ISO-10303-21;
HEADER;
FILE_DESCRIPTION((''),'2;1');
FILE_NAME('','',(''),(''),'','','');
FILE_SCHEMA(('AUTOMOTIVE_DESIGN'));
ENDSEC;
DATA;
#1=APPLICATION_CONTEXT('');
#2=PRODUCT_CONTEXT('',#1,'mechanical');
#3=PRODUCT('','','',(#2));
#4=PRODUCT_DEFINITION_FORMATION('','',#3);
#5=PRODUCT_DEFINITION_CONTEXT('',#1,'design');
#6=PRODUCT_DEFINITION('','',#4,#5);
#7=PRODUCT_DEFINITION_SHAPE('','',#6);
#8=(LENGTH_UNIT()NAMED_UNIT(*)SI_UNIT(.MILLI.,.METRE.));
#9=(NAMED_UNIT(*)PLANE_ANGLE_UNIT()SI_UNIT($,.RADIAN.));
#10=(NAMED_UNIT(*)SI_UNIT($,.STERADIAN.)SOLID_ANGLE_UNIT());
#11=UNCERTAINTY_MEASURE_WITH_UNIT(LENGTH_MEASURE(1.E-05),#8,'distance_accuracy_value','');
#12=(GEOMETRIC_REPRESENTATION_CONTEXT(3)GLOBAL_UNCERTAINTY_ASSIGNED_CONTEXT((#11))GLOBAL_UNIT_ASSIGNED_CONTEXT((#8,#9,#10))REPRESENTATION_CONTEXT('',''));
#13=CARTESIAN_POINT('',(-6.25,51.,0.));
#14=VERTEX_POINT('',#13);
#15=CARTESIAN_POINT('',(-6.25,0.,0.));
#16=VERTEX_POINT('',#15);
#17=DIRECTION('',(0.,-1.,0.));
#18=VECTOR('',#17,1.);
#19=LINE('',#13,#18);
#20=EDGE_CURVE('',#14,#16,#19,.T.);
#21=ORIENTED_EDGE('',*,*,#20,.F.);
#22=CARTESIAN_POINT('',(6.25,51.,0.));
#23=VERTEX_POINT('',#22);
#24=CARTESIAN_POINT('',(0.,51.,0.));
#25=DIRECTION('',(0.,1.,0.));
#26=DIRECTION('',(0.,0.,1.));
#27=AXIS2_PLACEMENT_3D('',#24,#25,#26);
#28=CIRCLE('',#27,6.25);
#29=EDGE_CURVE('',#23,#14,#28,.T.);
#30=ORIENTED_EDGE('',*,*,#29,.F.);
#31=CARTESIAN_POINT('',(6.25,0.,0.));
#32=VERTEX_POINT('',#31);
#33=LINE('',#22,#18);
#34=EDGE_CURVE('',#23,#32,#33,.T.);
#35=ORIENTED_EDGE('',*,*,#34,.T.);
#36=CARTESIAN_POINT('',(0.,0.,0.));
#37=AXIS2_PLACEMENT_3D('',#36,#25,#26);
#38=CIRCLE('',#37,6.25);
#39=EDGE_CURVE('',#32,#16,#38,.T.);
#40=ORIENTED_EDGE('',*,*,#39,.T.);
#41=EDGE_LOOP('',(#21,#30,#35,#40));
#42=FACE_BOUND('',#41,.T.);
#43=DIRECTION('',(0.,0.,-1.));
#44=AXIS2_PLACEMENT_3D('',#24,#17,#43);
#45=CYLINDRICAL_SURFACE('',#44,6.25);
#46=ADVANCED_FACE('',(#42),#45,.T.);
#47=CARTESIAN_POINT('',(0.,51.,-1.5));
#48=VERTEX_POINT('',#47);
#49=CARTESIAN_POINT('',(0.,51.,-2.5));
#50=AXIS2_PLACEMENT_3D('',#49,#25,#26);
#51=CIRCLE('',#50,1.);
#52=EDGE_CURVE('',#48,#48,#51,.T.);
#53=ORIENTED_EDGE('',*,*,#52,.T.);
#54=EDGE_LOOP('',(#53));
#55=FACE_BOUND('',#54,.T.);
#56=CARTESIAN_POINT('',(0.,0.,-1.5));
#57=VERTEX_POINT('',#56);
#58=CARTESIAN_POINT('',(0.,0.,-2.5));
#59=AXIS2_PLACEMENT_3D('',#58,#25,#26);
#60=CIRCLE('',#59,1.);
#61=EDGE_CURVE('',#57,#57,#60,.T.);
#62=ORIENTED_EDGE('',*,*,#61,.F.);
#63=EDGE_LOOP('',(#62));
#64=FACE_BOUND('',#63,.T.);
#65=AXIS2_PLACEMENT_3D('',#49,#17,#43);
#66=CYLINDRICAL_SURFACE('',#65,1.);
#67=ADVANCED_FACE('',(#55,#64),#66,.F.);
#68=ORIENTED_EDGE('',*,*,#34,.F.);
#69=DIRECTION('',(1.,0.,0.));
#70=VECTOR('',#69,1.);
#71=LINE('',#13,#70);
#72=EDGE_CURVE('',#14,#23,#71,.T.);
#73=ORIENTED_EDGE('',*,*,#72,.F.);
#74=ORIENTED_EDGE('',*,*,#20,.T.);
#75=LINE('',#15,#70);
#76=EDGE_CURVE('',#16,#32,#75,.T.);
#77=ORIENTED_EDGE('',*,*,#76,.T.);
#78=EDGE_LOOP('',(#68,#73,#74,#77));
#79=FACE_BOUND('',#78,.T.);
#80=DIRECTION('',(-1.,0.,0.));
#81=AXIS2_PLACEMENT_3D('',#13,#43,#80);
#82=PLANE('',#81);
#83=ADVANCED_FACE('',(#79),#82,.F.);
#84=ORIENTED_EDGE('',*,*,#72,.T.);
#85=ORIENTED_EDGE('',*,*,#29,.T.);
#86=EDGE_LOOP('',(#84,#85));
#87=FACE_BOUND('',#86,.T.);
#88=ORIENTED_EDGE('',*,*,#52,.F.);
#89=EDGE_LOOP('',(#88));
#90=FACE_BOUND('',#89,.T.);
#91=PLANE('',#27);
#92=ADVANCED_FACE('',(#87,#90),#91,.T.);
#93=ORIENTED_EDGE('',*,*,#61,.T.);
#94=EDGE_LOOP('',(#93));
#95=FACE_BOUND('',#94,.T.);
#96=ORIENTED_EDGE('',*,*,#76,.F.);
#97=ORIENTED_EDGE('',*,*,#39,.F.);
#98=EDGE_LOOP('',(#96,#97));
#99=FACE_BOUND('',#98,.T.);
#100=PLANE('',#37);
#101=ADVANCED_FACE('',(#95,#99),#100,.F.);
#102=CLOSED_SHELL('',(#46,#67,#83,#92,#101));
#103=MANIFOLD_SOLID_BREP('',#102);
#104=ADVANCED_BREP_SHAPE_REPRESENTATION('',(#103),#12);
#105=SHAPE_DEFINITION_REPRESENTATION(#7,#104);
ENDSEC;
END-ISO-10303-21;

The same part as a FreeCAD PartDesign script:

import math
import FreeCAD as App
import Part
import Sketcher
Q = App.Units.Quantity

doc = App.newDocument("Part")
params = doc.addObject("Spreadsheet::Sheet", "Params")
for row, (alias, value) in enumerate([
    ("sketch1_diameter", "2 mm"),
    ("sketch1_radius", "6.25 mm"),
    ("pad1_length", "51 mm"),
], start=1):
    params.set(f"A{row}", alias)
    params.set(f"B{row}", "=" + value)
    params.setAlias(f"B{row}", alias)

body = doc.addObject("PartDesign::Body", "Body")

# Sketch on XZ plane
sketch1 = body.newObject("Sketcher::SketchObject", "Sketch")
sketch1.AttachmentSupport = (doc.getObject("XZ_Plane"), [""])
sketch1.MapMode = "FlatFace"
sketch1.addGeometry([
    Part.LineSegment(App.Vector(-6.2, 0, 0), App.Vector(6.2, 0, 0)),
    Part.ArcOfCircle(Part.Circle(App.Vector(0, 0, 0), App.Vector(0, 0, 1), 6.2), math.radians(180), math.radians(360)),
    Part.Circle(App.Vector(0, -2.5, 0), App.Vector(0, 0, 1), 1),
], False)
sketch1.addConstraint([
    Sketcher.Constraint("Coincident", 0, 1, 1, 1),
    Sketcher.Constraint("Coincident", 1, 2, 0, 2),
    Sketcher.Constraint("Horizontal", 0),
    Sketcher.Constraint("Coincident", 1, 3, -1, 1),
    Sketcher.Constraint("PointOnObject", 2, 3, -2),
    Sketcher.Constraint("PointOnObject", 0, 1, -1),
    Sketcher.Constraint("Diameter", 2, Q("2 mm")),
    Sketcher.Constraint("Radius", 1, Q("6.25 mm")),
    Sketcher.Constraint("DistanceY", 2, 3, -1, 1, Q("2.5 mm")),
])
sketch1.setExpression("Constraints[6]", "Params.sketch1_diameter")
sketch1.setExpression("Constraints[7]", "Params.sketch1_radius")
pad1 = body.newObject("PartDesign::Pad", "Pad")
pad1.Profile = sketch1
pad1.setExpression("Length", "Params.pad1_length")
pad1.Reversed = True

doc.recompute()
